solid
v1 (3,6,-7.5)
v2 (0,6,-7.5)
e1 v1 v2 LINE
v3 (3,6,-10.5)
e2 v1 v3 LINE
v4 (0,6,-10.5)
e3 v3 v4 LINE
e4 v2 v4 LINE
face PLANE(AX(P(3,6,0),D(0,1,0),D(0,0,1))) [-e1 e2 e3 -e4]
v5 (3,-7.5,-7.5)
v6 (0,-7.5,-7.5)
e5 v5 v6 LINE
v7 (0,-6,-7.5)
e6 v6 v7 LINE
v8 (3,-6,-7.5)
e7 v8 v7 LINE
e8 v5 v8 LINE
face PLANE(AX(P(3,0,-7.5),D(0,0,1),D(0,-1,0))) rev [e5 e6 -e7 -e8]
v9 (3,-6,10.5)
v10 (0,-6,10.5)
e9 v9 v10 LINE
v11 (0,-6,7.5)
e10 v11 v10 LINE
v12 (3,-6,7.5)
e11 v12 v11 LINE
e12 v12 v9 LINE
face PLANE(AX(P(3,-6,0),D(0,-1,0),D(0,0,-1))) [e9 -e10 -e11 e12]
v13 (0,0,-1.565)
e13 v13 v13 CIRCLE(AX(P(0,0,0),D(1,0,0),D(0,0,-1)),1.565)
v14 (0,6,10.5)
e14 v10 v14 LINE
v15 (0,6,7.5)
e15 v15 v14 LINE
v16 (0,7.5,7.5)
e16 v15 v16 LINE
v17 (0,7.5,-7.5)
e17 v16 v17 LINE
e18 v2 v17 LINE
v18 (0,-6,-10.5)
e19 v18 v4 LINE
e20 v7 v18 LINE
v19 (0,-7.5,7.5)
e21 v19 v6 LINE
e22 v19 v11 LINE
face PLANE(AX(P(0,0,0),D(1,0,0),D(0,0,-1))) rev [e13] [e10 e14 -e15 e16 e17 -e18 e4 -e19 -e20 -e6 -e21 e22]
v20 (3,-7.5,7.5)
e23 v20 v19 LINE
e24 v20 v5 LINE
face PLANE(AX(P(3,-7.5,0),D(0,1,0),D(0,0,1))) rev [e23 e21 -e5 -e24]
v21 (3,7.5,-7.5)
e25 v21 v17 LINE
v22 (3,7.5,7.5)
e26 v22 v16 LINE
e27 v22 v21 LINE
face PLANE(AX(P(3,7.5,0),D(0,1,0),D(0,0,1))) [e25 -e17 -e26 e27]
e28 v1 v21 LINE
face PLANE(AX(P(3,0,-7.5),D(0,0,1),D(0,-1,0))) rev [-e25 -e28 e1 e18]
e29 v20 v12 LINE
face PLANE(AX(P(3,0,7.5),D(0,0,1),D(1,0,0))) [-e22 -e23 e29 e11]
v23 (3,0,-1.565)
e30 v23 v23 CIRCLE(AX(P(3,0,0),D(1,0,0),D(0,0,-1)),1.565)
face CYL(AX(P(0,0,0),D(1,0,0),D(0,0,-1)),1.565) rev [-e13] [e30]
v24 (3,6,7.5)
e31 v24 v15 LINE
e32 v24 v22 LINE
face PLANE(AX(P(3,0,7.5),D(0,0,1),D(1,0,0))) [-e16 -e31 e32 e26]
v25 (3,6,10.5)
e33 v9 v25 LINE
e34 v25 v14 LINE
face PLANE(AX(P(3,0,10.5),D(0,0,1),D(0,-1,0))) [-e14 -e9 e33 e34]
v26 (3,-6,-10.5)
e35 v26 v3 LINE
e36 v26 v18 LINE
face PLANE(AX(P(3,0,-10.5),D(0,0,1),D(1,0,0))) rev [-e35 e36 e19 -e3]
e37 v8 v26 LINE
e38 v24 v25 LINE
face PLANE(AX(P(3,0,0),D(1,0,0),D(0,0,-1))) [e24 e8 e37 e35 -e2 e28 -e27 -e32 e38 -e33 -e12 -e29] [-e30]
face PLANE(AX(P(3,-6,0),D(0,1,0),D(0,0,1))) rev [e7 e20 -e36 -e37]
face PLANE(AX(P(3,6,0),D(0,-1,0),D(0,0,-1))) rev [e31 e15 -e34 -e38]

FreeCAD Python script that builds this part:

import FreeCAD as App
import Part
import Sketcher

V = App.Vector
Q = App.Units.Quantity


def add_polygon(sketch, points):
    """Adds a closed chain of lines whose ends are joined by coincident constraints."""
    first, n = sketch.GeometryCount, len(points)
    for a, b in zip(points, points[1:] + points[:1]):
        sketch.addGeometry(Part.LineSegment(App.Vector(*a, 0), App.Vector(*b, 0)), False)
    for i in range(n):
        sketch.addConstraint(Sketcher.Constraint("Coincident", first + i, 2, first + (i + 1) % n, 1))

doc = App.newDocument("Part")
body = doc.addObject("PartDesign::Body", "Body")

sketch1 = body.newObject("Sketcher::SketchObject", "Sketch")
sketch1.AttachmentSupport = (doc.getObject("YZ_Plane"), [""])
sketch1.MapMode = "FlatFace"
add_polygon(sketch1, [(-6, -7.5), (-6, -10.5), (6, -10.5), (6, -7.5), (7.5, -7.5), (7.5, 7.5), (6, 7.5), (6, 10.5), (-6, 10.5), (-6, 7.5), (-7.5, 7.5), (-7.5, -7.5)])
sketch1.addConstraint(Sketcher.Constraint("Vertical", 0))
sketch1.addConstraint(Sketcher.Constraint("Horizontal", 1))
sketch1.addConstraint(Sketcher.Constraint("Vertical", 2))
sketch1.addConstraint(Sketcher.Constraint("Horizontal", 3))
sketch1.addConstraint(Sketcher.Constraint("Vertical", 4))
sketch1.addConstraint(Sketcher.Constraint("Horizontal", 5))
sketch1.addConstraint(Sketcher.Constraint("Vertical", 6))
sketch1.addConstraint(Sketcher.Constraint("Horizontal", 7))
sketch1.addConstraint(Sketcher.Constraint("Vertical", 8))
sketch1.addConstraint(Sketcher.Constraint("Horizontal", 9))
sketch1.addConstraint(Sketcher.Constraint("Vertical", 10))
sketch1.addConstraint(Sketcher.Constraint("Horizontal", 11))
sketch1.addConstraint(Sketcher.Constraint("Symmetric", 0, 2, 6, 2, -1, 1))
sketch1.addConstraint(Sketcher.Constraint("Symmetric", 2, 2, 8, 2, -1, 1))
sketch1.addConstraint(Sketcher.Constraint("Symmetric", 4, 2, 10, 2, -1, 1))
sketch1.addConstraint(Sketcher.Constraint("Symmetric", 5, 2, 8, 2, -2))
sketch1.addConstraint(Sketcher.Constraint("DistanceX", 1, 1, 1, 2, Q("12 mm")))
sketch1.addConstraint(Sketcher.Constraint("DistanceY", 0, 2, 0, 1, Q("3 mm")))
sketch1.addConstraint(Sketcher.Constraint("DistanceY", 4, 1, 4, 2, Q("15 mm")))
sketch1.addConstraint(Sketcher.Constraint("DistanceX", 3, 1, 3, 2, Q("1.5 mm")))
pad1 = body.newObject("PartDesign::Pad", "Pad")
pad1.Profile = sketch1
pad1.Length = 3

sketch2 = body.newObject("Sketcher::SketchObject", "Sketch001")
sketch2.AttachmentSupport = (doc.getObject("YZ_Plane"), [""])
sketch2.MapMode = "FlatFace"
sketch2.AttachmentOffset = App.Placement(V(0, 0, 3), App.Rotation())
sketch2.addGeometry(Part.Circle(V(0, 0, 0), V(0, 0, 1), 1.565), False)
sketch2.addConstraint(Sketcher.Constraint("Coincident", 0, 3, -1, 1))
sketch2.addConstraint(Sketcher.Constraint("Diameter", 0, Q("3.13 mm")))
pocket1 = body.newObject("PartDesign::Pocket", "Pocket")
pocket1.Profile = sketch2
pocket1.Length = 3

doc.recompute()
